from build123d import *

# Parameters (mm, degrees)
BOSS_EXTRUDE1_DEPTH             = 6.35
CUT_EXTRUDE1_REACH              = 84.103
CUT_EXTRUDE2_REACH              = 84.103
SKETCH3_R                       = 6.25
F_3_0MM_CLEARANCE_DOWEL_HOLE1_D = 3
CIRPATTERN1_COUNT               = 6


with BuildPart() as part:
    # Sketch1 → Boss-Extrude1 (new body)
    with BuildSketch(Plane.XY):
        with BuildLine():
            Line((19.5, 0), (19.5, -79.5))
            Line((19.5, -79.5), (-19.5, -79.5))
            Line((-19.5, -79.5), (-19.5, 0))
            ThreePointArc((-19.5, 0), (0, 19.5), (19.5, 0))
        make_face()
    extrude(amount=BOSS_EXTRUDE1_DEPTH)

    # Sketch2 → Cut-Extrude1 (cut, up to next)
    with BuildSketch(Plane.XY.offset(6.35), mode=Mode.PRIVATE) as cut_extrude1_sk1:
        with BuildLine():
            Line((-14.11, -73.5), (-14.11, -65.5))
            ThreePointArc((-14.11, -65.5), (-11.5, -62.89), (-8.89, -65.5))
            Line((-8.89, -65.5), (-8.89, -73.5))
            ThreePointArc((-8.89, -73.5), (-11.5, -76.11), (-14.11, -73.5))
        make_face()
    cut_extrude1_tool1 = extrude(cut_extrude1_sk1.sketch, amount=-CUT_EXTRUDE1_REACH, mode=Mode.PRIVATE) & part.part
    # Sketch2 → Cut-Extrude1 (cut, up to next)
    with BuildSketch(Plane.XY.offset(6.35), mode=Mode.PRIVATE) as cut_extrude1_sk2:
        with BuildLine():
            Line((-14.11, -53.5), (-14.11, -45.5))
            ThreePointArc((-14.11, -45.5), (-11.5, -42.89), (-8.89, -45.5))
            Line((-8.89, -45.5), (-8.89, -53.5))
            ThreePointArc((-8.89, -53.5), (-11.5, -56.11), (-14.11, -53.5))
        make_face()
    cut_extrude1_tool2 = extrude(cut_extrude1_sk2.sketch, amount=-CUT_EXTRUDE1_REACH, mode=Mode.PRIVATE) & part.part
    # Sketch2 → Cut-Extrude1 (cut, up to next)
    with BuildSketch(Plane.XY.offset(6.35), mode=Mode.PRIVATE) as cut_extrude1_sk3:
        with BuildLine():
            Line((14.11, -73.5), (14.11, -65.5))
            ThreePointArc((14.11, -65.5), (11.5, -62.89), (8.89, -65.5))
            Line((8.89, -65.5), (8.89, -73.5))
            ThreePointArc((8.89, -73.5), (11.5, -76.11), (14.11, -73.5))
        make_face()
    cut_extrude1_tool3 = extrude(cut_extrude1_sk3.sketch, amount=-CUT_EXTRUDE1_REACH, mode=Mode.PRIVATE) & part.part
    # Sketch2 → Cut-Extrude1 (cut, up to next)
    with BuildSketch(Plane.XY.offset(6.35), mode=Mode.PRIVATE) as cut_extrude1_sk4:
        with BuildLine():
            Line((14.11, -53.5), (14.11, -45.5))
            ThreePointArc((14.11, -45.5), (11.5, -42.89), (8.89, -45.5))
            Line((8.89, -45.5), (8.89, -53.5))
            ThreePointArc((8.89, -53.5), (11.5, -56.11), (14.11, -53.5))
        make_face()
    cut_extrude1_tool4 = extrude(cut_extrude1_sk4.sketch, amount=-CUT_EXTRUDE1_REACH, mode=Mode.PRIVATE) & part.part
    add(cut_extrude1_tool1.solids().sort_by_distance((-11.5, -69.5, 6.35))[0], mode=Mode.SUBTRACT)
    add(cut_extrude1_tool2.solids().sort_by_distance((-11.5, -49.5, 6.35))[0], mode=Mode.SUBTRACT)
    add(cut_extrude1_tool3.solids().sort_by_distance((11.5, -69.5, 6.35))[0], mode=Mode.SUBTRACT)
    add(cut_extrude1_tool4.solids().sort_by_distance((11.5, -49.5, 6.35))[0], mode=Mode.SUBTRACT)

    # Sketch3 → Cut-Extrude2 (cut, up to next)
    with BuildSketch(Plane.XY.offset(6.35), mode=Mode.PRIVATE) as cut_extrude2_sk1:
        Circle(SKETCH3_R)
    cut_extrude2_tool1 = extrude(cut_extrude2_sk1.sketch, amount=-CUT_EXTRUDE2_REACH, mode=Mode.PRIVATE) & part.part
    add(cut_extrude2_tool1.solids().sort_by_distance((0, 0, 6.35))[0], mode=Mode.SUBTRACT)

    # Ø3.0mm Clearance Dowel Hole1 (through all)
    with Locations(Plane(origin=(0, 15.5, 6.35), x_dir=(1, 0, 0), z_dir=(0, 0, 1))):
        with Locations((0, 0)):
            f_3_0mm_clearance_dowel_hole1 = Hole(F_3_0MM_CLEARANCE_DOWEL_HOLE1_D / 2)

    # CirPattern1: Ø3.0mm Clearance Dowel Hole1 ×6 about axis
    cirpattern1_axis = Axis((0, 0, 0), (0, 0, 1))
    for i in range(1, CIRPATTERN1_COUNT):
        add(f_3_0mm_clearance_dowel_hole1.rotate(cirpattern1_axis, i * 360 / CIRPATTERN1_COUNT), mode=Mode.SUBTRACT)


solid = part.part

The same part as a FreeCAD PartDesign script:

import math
import FreeCAD as App
import Part
import Sketcher

V = App.Vector
Q = App.Units.Quantity

doc = App.newDocument("Part")
body = doc.addObject("PartDesign::Body", "Body")

# Sketch on XY plane
sketch1 = body.newObject("Sketcher::SketchObject", "Sketch")
sketch1.AttachmentSupport = (doc.getObject("XY_Plane"), [""])
sketch1.MapMode = "FlatFace"
sketch1.addGeometry([
    Part.LineSegment(V(20, -80, 0), V(20, 0, 0)),
    Part.ArcOfCircle(Part.Circle(V(0, 0, 0), V(0, 0, 1), 20), math.radians(0), math.radians(180)),
    Part.LineSegment(V(-20, 0, 0), V(-20, -80, 0)),
    Part.LineSegment(V(-20, -80, 0), V(20, -80, 0)),
], False)
sketch1.addConstraint([
    Sketcher.Constraint("Tangent", 0, 2, 1, 1),
    Sketcher.Constraint("Tangent", 1, 2, 2, 1),
    Sketcher.Constraint("Coincident", 2, 2, 3, 1),
    Sketcher.Constraint("Coincident", 3, 2, 0, 1),
    Sketcher.Constraint("Vertical", 0),
    Sketcher.Constraint("Vertical", 2),
    Sketcher.Constraint("Horizontal", 3),
    Sketcher.Constraint("Coincident", 1, 3, -1, 1),
    Sketcher.Constraint("Radius", 1, Q("19.5 mm")),
    Sketcher.Constraint("DistanceY", 0, 1, 0, 2, Q("79.5 mm")),
])
pad1 = body.newObject("PartDesign::Pad", "Pad")
pad1.Profile = sketch1
pad1.Length = 6.35

# Sketch on XY plane
sketch2 = body.newObject("Sketcher::SketchObject", "Sketch001")
sketch2.AttachmentSupport = (doc.getObject("XY_Plane"), [""])
sketch2.MapMode = "FlatFace"
sketch2.AttachmentOffset = App.Placement(V(0, 0, 6.35), App.Rotation())
sketch2.addGeometry([
    Part.LineSegment(V(-14.1, -65.5, 0), V(-14.1, -73.5, 0)),
    Part.ArcOfCircle(Part.Circle(V(-11.5, -73.5, 0), V(0, 0, 1), 2.6), math.radians(180), math.radians(360)),
    Part.LineSegment(V(-8.9, -73.5, 0), V(-8.9, -65.5, 0)),
    Part.ArcOfCircle(Part.Circle(V(-11.5, -65.5, 0), V(0, 0, 1), 2.6), math.radians(0), math.radians(180)),
], False)
sketch2.addConstraint([
    Sketcher.Constraint("Tangent", 0, 2, 1, 1),
    Sketcher.Constraint("Tangent", 1, 2, 2, 1),
    Sketcher.Constraint("Tangent", 2, 2, 3, 1),
    Sketcher.Constraint("Tangent", 3, 2, 0, 1),
    Sketcher.Constraint("Vertical", 0),
    Sketcher.Constraint("Vertical", 2),
    Sketcher.Constraint("DistanceY", 0, 2, 0, 1, Q("8 mm")),
    Sketcher.Constraint("Radius", 1, Q("2.61 mm")),
    Sketcher.Constraint("DistanceX", 1, 3, -1, 1, Q("11.5 mm")),
    Sketcher.Constraint("DistanceY", 1, 3, -1, 1, Q("73.5 mm")),
])
pocket1 = body.newObject("PartDesign::Pocket", "Pocket")
pocket1.Profile = sketch2
pocket1.Type = "UpToFirst"

# Sketch on XY plane
sketch3 = body.newObject("Sketcher::SketchObject", "Sketch002")
sketch3.AttachmentSupport = (doc.getObject("XY_Plane"), [""])
sketch3.MapMode = "FlatFace"
sketch3.AttachmentOffset = App.Placement(V(0, 0, 6.35), App.Rotation())
sketch3.addGeometry([
    Part.LineSegment(V(-14.1, -45.5, 0), V(-14.1, -53.5, 0)),
    Part.ArcOfCircle(Part.Circle(V(-11.5, -53.5, 0), V(0, 0, 1), 2.6), math.radians(180), math.radians(360)),
    Part.LineSegment(V(-8.9, -53.5, 0), V(-8.9, -45.5, 0)),
    Part.ArcOfCircle(Part.Circle(V(-11.5, -45.5, 0), V(0, 0, 1), 2.6), math.radians(0), math.radians(180)),
], False)
sketch3.addConstraint([
    Sketcher.Constraint("Tangent", 0, 2, 1, 1),
    Sketcher.Constraint("Tangent", 1, 2, 2, 1),
    Sketcher.Constraint("Tangent", 2, 2, 3, 1),
    Sketcher.Constraint("Tangent", 3, 2, 0, 1),
    Sketcher.Constraint("Vertical", 0),
    Sketcher.Constraint("Vertical", 2),
    Sketcher.Constraint("DistanceY", 0, 2, 0, 1, Q("8 mm")),
    Sketcher.Constraint("Radius", 1, Q("2.61 mm")),
    Sketcher.Constraint("DistanceX", 1, 3, -1, 1, Q("11.5 mm")),
    Sketcher.Constraint("DistanceY", 1, 3, -1, 1, Q("53.5 mm")),
])
pocket2 = body.newObject("PartDesign::Pocket", "Pocket001")
pocket2.Profile = sketch3
pocket2.Type = "UpToFirst"

# Sketch on XY plane
sketch4 = body.newObject("Sketcher::SketchObject", "Sketch003")
sketch4.AttachmentSupport = (doc.getObject("XY_Plane"), [""])
sketch4.MapMode = "FlatFace"
sketch4.AttachmentOffset = App.Placement(V(0, 0, 6.35), App.Rotation())
sketch4.addGeometry([
    Part.LineSegment(V(14.1, -73.5, 0), V(14.1, -65.5, 0)),
    Part.ArcOfCircle(Part.Circle(V(11.5, -65.5, 0), V(0, 0, 1), 2.6), math.radians(0), math.radians(180)),
    Part.LineSegment(V(8.9, -65.5, 0), V(8.9, -73.5, 0)),
    Part.ArcOfCircle(Part.Circle(V(11.5, -73.5, 0), V(0, 0, 1), 2.6), math.radians(180), math.radians(360)),
], False)
sketch4.addConstraint([
    Sketcher.Constraint("Tangent", 0, 2, 1, 1),
    Sketcher.Constraint("Tangent", 1, 2, 2, 1),
    Sketcher.Constraint("Tangent", 2, 2, 3, 1),
    Sketcher.Constraint("Tangent", 3, 2, 0, 1),
    Sketcher.Constraint("Vertical", 0),
    Sketcher.Constraint("Vertical", 2),
    Sketcher.Constraint("DistanceY", 0, 1, 0, 2, Q("8 mm")),
    Sketcher.Constraint("Radius", 1, Q("2.61 mm")),
    Sketcher.Constraint("DistanceX", -1, 1, 1, 3, Q("11.5 mm")),
    Sketcher.Constraint("DistanceY", 1, 3, -1, 1, Q("65.5 mm")),
])
pocket3 = body.newObject("PartDesign::Pocket", "Pocket002")
pocket3.Profile = sketch4
pocket3.Type = "UpToFirst"

# Sketch on XY plane
sketch5 = body.newObject("Sketcher::SketchObject", "Sketch004")
sketch5.AttachmentSupport = (doc.getObject("XY_Plane"), [""])
sketch5.MapMode = "FlatFace"
sketch5.AttachmentOffset = App.Placement(V(0, 0, 6.35), App.Rotation())
sketch5.addGeometry([
    Part.LineSegment(V(14.1, -53.5, 0), V(14.1, -45.5, 0)),
    Part.ArcOfCircle(Part.Circle(V(11.5, -45.5, 0), V(0, 0, 1), 2.6), math.radians(0), math.radians(180)),
    Part.LineSegment(V(8.9, -45.5, 0), V(8.9, -53.5, 0)),
    Part.ArcOfCircle(Part.Circle(V(11.5, -53.5, 0), V(0, 0, 1), 2.6), math.radians(180), math.radians(360)),
], False)
sketch5.addConstraint([
    Sketcher.Constraint("Tangent", 0, 2, 1, 1),
    Sketcher.Constraint("Tangent", 1, 2, 2, 1),
    Sketcher.Constraint("Tangent", 2, 2, 3, 1),
    Sketcher.Constraint("Tangent", 3, 2, 0, 1),
    Sketcher.Constraint("Vertical", 0),
    Sketcher.Constraint("Vertical", 2),
    Sketcher.Constraint("DistanceY", 0, 1, 0, 2, Q("8 mm")),
    Sketcher.Constraint("Radius", 1, Q("2.61 mm")),
    Sketcher.Constraint("DistanceX", -1, 1, 1, 3, Q("11.5 mm")),
    Sketcher.Constraint("DistanceY", 1, 3, -1, 1, Q("45.5 mm")),
])
pocket4 = body.newObject("PartDesign::Pocket", "Pocket003")
pocket4.Profile = sketch5
pocket4.Type = "UpToFirst"

# Sketch on XY plane
sketch6 = body.newObject("Sketcher::SketchObject", "Sketch005")
sketch6.AttachmentSupport = (doc.getObject("XY_Plane"), [""])
sketch6.MapMode = "FlatFace"
sketch6.AttachmentOffset = App.Placement(V(0, 0, 6.35), App.Rotation())
sketch6.addGeometry(Part.Circle(V(0, 0, 0), V(0, 0, 1), 6), False)
sketch6.addConstraint([
    Sketcher.Constraint("Coincident", 0, 3, -1, 1),
    Sketcher.Constraint("Diameter", 0, Q("12.5 mm")),
])
pocket5 = body.newObject("PartDesign::Pocket", "Pocket004")
pocket5.Profile = sketch6
pocket5.Type = "UpToFirst"

# Sketch on XY plane
sketch7 = body.newObject("Sketcher::SketchObject", "Sketch006")
sketch7.AttachmentSupport = (doc.getObject("XY_Plane"), [""])
sketch7.MapMode = "FlatFace"
sketch7.AttachmentOffset = App.Placement(V(0, 0, 6.35), App.Rotation())
sketch7.addGeometry(Part.Circle(V(0, 15.5, 0), V(0, 0, 1), 1.5), False)
sketch7.addConstraint([
    Sketcher.Constraint("PointOnObject", 0, 3, -2),
    Sketcher.Constraint("Diameter", 0, Q("3 mm")),
    Sketcher.Constraint("DistanceY", -1, 1, 0, 3, Q("15.5 mm")),
])
doc.recompute()
hole = body.newObject("PartDesign::Hole", "Hole")
hole.Profile = sketch7
hole.ThreadType = "None"
hole.Diameter = 3
hole.DepthType = "ThroughAll"
doc.recompute()

polarpattern = body.newObject("PartDesign::PolarPattern", "PolarPattern")
polarpattern.Originals = [hole]
polarpattern.Axis = (doc.getObject("Z_Axis"), [""])
polarpattern.Angle = 360
polarpattern.Occurrences = 6
body.Tip = polarpattern

doc.recompute()
